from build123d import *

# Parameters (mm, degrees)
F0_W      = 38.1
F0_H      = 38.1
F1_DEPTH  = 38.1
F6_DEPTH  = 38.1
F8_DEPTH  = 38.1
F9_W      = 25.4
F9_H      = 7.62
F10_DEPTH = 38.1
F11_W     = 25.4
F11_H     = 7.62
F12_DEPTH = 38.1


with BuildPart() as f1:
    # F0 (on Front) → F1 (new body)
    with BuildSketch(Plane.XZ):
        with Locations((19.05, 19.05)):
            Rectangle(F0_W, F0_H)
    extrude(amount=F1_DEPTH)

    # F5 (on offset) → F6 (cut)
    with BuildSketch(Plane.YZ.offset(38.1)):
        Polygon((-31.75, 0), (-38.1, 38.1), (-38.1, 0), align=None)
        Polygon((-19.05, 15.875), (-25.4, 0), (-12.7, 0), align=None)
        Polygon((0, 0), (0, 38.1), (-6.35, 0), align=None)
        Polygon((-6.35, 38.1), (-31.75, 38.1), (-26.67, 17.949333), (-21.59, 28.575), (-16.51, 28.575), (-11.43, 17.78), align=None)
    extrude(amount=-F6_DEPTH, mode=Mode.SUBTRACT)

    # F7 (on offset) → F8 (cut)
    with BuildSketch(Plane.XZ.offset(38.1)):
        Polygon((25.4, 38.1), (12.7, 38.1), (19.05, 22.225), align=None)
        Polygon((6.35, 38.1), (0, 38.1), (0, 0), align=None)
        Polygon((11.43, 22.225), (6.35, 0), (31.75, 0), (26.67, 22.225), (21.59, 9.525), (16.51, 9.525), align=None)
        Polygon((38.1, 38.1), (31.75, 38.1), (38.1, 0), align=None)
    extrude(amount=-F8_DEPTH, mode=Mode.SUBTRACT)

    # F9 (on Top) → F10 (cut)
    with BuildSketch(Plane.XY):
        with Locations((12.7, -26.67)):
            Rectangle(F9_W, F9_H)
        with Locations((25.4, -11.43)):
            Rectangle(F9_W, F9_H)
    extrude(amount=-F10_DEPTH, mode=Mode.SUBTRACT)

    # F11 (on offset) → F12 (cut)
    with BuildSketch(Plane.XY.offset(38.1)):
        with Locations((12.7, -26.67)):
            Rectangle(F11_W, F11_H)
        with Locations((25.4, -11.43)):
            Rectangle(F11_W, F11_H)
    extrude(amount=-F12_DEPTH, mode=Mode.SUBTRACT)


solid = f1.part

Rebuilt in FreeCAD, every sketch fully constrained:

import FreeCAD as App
import Part
import Sketcher
from FreeCAD import Vector
Q = App.Units.Quantity

doc = App.newDocument("Part")
body = doc.addObject("PartDesign::Body", "Body")

# Sketch on XZ plane
sketch1 = doc.addObject("Sketcher::SketchObject", "Sketch")
body.addObject(sketch1)
sketch1.AttachmentSupport = (doc.XZ_Plane, [""])
sketch1.MapMode = "FlatFace"
sketch1.addGeometry([
    Part.LineSegment(Vector(0, 38, 0), Vector(0, 0, 0)),
    Part.LineSegment(Vector(0, 0, 0), Vector(38, 0, 0)),
    Part.LineSegment(Vector(38, 0, 0), Vector(38, 38, 0)),
    Part.LineSegment(Vector(38, 38, 0), Vector(0, 38, 0)),
], False)
sketch1.addConstraint([
    Sketcher.Constraint("Coincident", 0, 2, 1, 1),
    Sketcher.Constraint("Coincident", 1, 2, 2, 1),
    Sketcher.Constraint("Coincident", 2, 2, 3, 1),
    Sketcher.Constraint("Coincident", 3, 2, 0, 1),
    Sketcher.Constraint("Vertical", 0),
    Sketcher.Constraint("Horizontal", 1),
    Sketcher.Constraint("Vertical", 2),
    Sketcher.Constraint("Horizontal", 3),
    Sketcher.Constraint("Coincident", 0, 2, -1, 1),
    Sketcher.Constraint("Equal", 3, 0),
    Sketcher.Constraint("DistanceX", 1, 1, 1, 2, Q("1.5 in")),
])
pad1 = doc.addObject("PartDesign::Pad", "Pad")
body.addObject(pad1)
pad1.Profile = sketch1
pad1.Length = Q("1.5 in")

# Sketch on YZ plane
sketch2 = doc.addObject("Sketcher::SketchObject", "Sketch001")
body.addObject(sketch2)
sketch2.AttachmentSupport = (doc.YZ_Plane, [""])
sketch2.MapMode = "FlatFace"
sketch2.AttachmentOffset = App.Placement(Vector(0, 0, 1.5 * 25.4), App.Rotation())
sketch2.addGeometry([
    Part.LineSegment(Vector(-32, 0, 0), Vector(-38, 38, 0)),  # 0
    Part.LineSegment(Vector(-38, 38, 0), Vector(-38, 0, 0)),  # 1
    Part.LineSegment(Vector(-38, 0, 0), Vector(-32, 0, 0)),  # 2
    Part.LineSegment(Vector(-19, 16, 0), Vector(-25, 0, 0)),  # 3
    Part.LineSegment(Vector(-25, 0, 0), Vector(-13, 0, 0)),  # 4
    Part.LineSegment(Vector(-13, 0, 0), Vector(-19, 16, 0)),  # 5
    Part.LineSegment(Vector(0, 0, 0), Vector(0, 38, 0)),  # 6
    Part.LineSegment(Vector(0, 38, 0), Vector(-6, 0, 0)),  # 7
    Part.LineSegment(Vector(-6, 0, 0), Vector(0, 0, 0)),  # 8
    Part.LineSegment(Vector(-6, 38, 0), Vector(-32, 38, 0)),  # 9
    Part.LineSegment(Vector(-32, 38, 0), Vector(-27, 18, 0)),  # 10
    Part.LineSegment(Vector(-27, 18, 0), Vector(-22, 29, 0)),  # 11
    Part.LineSegment(Vector(-22, 29, 0), Vector(-17, 29, 0)),  # 12
    Part.LineSegment(Vector(-17, 29, 0), Vector(-11, 18, 0)),  # 13
    Part.LineSegment(Vector(-11, 18, 0), Vector(-6, 38, 0)),  # 14
], False)
sketch2.addConstraint([
    Sketcher.Constraint("Coincident", 0, 2, 1, 1),
    Sketcher.Constraint("Coincident", 1, 2, 2, 1),
    Sketcher.Constraint("Coincident", 2, 2, 0, 1),
    Sketcher.Constraint("Coincident", 3, 2, 4, 1),
    Sketcher.Constraint("Coincident", 4, 2, 5, 1),
    Sketcher.Constraint("Coincident", 5, 2, 3, 1),
    Sketcher.Constraint("Coincident", 6, 2, 7, 1),
    Sketcher.Constraint("Coincident", 7, 2, 8, 1),
    Sketcher.Constraint("Coincident", 8, 2, 6, 1),
    Sketcher.Constraint("Coincident", 9, 2, 10, 1),
    Sketcher.Constraint("Coincident", 10, 2, 11, 1),
    Sketcher.Constraint("Coincident", 11, 2, 12, 1),
    Sketcher.Constraint("Coincident", 12, 2, 13, 1),
    Sketcher.Constraint("Coincident", 13, 2, 14, 1),
    Sketcher.Constraint("Coincident", 14, 2, 9, 1),
    Sketcher.Constraint("Vertical", 1),
    Sketcher.Constraint("Horizontal", 2),
    Sketcher.Constraint("Horizontal", 4),
    Sketcher.Constraint("Vertical", 6),
    Sketcher.Constraint("Horizontal", 8),
    Sketcher.Constraint("Horizontal", 9),
    Sketcher.Constraint("Horizontal", 12),
    Sketcher.Constraint("Coincident", 8, 2, -1, 1),
    Sketcher.Constraint("PointOnObject", 1, 2, -1),
    Sketcher.Constraint("PointOnObject", 3, 2, -1),
    Sketcher.Constraint("Horizontal", 0, 2, 6, 2),
    Sketcher.Constraint("Horizontal", 6, 2, 9, 2),
    Sketcher.Constraint("Vertical", 2, 2, 9, 2),
    Sketcher.Constraint("Vertical", 7, 2, 14, 2),
    Sketcher.Constraint("Equal", 2, 8),
    Sketcher.Constraint("Equal", 3, 5),
    Sketcher.Constraint("DistanceX", 9, 2, 9, 1, Q("1 in")),
    Sketcher.Constraint("DistanceX", 4, 1, 4, 2, Q("0.5 in")),
    Sketcher.Constraint("DistanceX", 12, 1, 12, 2, Q("0.2 in")),
    Sketcher.Constraint("DistanceY", 1, 2, 1, 1, Q("1.5 in")),
    Sketcher.Constraint("DistanceX", 3, 2, -1, 1, Q("1 in")),
    Sketcher.Constraint("DistanceX", 1, 2, 4, 2, Q("1 in")),
    Sketcher.Constraint("DistanceY", -1, 1, 13, 2, Q("0.7 in")),
    Sketcher.Constraint("DistanceX", 10, 2, 5, 2, Q("0.3 in")),
    Sketcher.Constraint("DistanceX", 10, 2, 11, 2, Q("0.2 in")),
    Sketcher.Constraint("DistanceY", 5, 2, 11, 2, Q("0.5 in")),
    Sketcher.Constraint("DistanceX", 5, 2, 13, 2, Q("0.3 in")),
    Sketcher.Constraint("DistanceY", -1, 1, 5, 2, Q("0.625 in")),
    Sketcher.Constraint("Distance", 10, Q("20.78114 mm")),
])
pocket1 = doc.addObject("PartDesign::Pocket", "Pocket")
body.addObject(pocket1)
pocket1.Profile = sketch2
pocket1.Length = Q("1.5 in")

# Sketch on XZ plane
sketch3 = doc.addObject("Sketcher::SketchObject", "Sketch002")
body.addObject(sketch3)
sketch3.AttachmentSupport = (doc.XZ_Plane, [""])
sketch3.MapMode = "FlatFace"
sketch3.AttachmentOffset = App.Placement(Vector(0, 0, 1.5 * 25.4), App.Rotation())
sketch3.addGeometry([
    Part.LineSegment(Vector(25, 38, 0), Vector(13, 38, 0)),  # 0
    Part.LineSegment(Vector(13, 38, 0), Vector(19, 22, 0)),  # 1
    Part.LineSegment(Vector(19, 22, 0), Vector(25, 38, 0)),  # 2
    Part.LineSegment(Vector(6, 38, 0), Vector(0, 38, 0)),  # 3
    Part.LineSegment(Vector(0, 38, 0), Vector(0, 0, 0)),  # 4
    Part.LineSegment(Vector(0, 0, 0), Vector(6, 38, 0)),  # 5
    Part.LineSegment(Vector(11, 22, 0), Vector(6, 0, 0)),  # 6
    Part.LineSegment(Vector(6, 0, 0), Vector(32, 0, 0)),  # 7
    Part.LineSegment(Vector(32, 0, 0), Vector(27, 22, 0)),  # 8
    Part.LineSegment(Vector(27, 22, 0), Vector(22, 10, 0)),  # 9
    Part.LineSegment(Vector(22, 10, 0), Vector(17, 10, 0)),  # 10
    Part.LineSegment(Vector(17, 10, 0), Vector(11, 22, 0)),  # 11
    Part.LineSegment(Vector(38, 38, 0), Vector(32, 38, 0)),  # 12
    Part.LineSegment(Vector(32, 38, 0), Vector(38, 0, 0)),  # 13
    Part.LineSegment(Vector(38, 0, 0), Vector(38, 38, 0)),  # 14
], False)
sketch3.addConstraint([
    Sketcher.Constraint("Coincident", 0, 2, 1, 1),
    Sketcher.Constraint("Coincident", 1, 2, 2, 1),
    Sketcher.Constraint("Coincident", 2, 2, 0, 1),
    Sketcher.Constraint("Coincident", 3, 2, 4, 1),
    Sketcher.Constraint("Coincident", 4, 2, 5, 1),
    Sketcher.Constraint("Coincident", 5, 2, 3, 1),
    Sketcher.Constraint("Coincident", 6, 2, 7, 1),
    Sketcher.Constraint("Coincident", 7, 2, 8, 1),
    Sketcher.Constraint("Coincident", 8, 2, 9, 1),
    Sketcher.Constraint("Coincident", 9, 2, 10, 1),
    Sketcher.Constraint("Coincident", 10, 2, 11, 1),
    Sketcher.Constraint("Coincident", 11, 2, 6, 1),
    Sketcher.Constraint("Coincident", 12, 2, 13, 1),
    Sketcher.Constraint("Coincident", 13, 2, 14, 1),
    Sketcher.Constraint("Coincident", 14, 2, 12, 1),
    Sketcher.Constraint("Horizontal", 0),
    Sketcher.Constraint("Horizontal", 3),
    Sketcher.Constraint("Vertical", 4),
    Sketcher.Constraint("Horizontal", 7),
    Sketcher.Constraint("Horizontal", 10),
    Sketcher.Constraint("Horizontal", 12),
    Sketcher.Constraint("Vertical", 14),
    Sketcher.Constraint("Coincident", 4, 2, -1, 1),
    Sketcher.Constraint("PointOnObject", 6, 2, -1),
    Sketcher.Constraint("PointOnObject", 13, 2, -1),
    Sketcher.Constraint("Parallel", 2, 9),
    Sketcher.Constraint("Parallel", 1, 11),
    Sketcher.Constraint("Horizontal", 2, 2, 3, 2),
    Sketcher.Constraint("Horizontal", 1, 2, 8, 2),
    Sketcher.Constraint("Horizontal", 8, 2, 11, 2),
    Sketcher.Constraint("Horizontal", 5, 2, 12, 2),
    Sketcher.Constraint("Vertical", 5, 2, 6, 2),
    Sketcher.Constraint("Vertical", 7, 2, 12, 2),
    Sketcher.Constraint("Equal", 3, 12),
    Sketcher.Constraint("Equal", 1, 2),
    Sketcher.Constraint("Equal", 6, 8),
    Sketcher.Constraint("DistanceX", 7, 1, 7, 2, Q("1 in")),
    Sketcher.Constraint("DistanceX", 0, 2, 0, 1, Q("0.5 in")),
    Sketcher.Constraint("DistanceX", 10, 2, 10, 1, Q("0.2 in")),
    Sketcher.Constraint("DistanceY", 4, 2, 4, 1, Q("1.5 in")),
    Sketcher.Constraint("DistanceX", -1, 1, 2, 2, Q("1 in")),
    Sketcher.Constraint("DistanceX", 0, 2, 14, 2, Q("1 in")),
    Sketcher.Constraint("DistanceX", 1, 2, 8, 2, Q("0.3 in")),
    Sketcher.Constraint("DistanceY", 9, 2, 1, 2, Q("0.5 in")),
])
pocket2 = doc.addObject("PartDesign::Pocket", "Pocket001")
body.addObject(pocket2)
pocket2.Profile = sketch3
pocket2.Length = Q("1.5 in")

# Sketch on XY plane
sketch4 = doc.addObject("Sketcher::SketchObject", "Sketch003")
body.addObject(sketch4)
sketch4.AttachmentSupport = (doc.XY_Plane, [""])
sketch4.MapMode = "FlatFace"
sketch4.addGeometry([
    Part.LineSegment(Vector(0, -23, 0), Vector(0, -30, 0)),  # 0
    Part.LineSegment(Vector(0, -30, 0), Vector(25, -30, 0)),  # 1
    Part.LineSegment(Vector(25, -30, 0), Vector(25, -23, 0)),  # 2
    Part.LineSegment(Vector(25, -23, 0), Vector(0, -23, 0)),  # 3
    Part.LineSegment(Vector(13, -8, 0), Vector(13, -15, 0)),  # 4
    Part.LineSegment(Vector(13, -15, 0), Vector(38, -15, 0)),  # 5
    Part.LineSegment(Vector(38, -15, 0), Vector(38, -8, 0)),  # 6
    Part.LineSegment(Vector(38, -8, 0), Vector(13, -8, 0)),  # 7
], False)
sketch4.addConstraint([
    Sketcher.Constraint("Coincident", 0, 2, 1, 1),
    Sketcher.Constraint("Coincident", 1, 2, 2, 1),
    Sketcher.Constraint("Coincident", 2, 2, 3, 1),
    Sketcher.Constraint("Coincident", 3, 2, 0, 1),
    Sketcher.Constraint("Coincident", 4, 2, 5, 1),
    Sketcher.Constraint("Coincident", 5, 2, 6, 1),
    Sketcher.Constraint("Coincident", 6, 2, 7, 1),
    Sketcher.Constraint("Coincident", 7, 2, 4, 1),
    Sketcher.Constraint("Vertical", 0),
    Sketcher.Constraint("Horizontal", 1),
    Sketcher.Constraint("Vertical", 2),
    Sketcher.Constraint("Horizontal", 3),
    Sketcher.Constraint("Vertical", 4),
    Sketcher.Constraint("Horizontal", 5),
    Sketcher.Constraint("Vertical", 6),
    Sketcher.Constraint("Horizontal", 7),
    Sketcher.Constraint("PointOnObject", 0, 2, -2),
    Sketcher.Constraint("Equal", 3, 5),
    Sketcher.Constraint("Equal", 2, 4),
    Sketcher.Constraint("DistanceX", 1, 1, 1, 2, Q("1 in")),
    Sketcher.Constraint("DistanceY", 0, 2, 0, 1, Q("0.3 in")),
    Sketcher.Constraint("DistanceY", 0, 2, -1, 1, Q("1.2 in")),
    Sketcher.Constraint("DistanceX", -1, 1, 4, 2, Q("0.5 in")),
    Sketcher.Constraint("DistanceY", 4, 2, -1, 1, Q("0.6 in")),
])
pocket3 = doc.addObject("PartDesign::Pocket", "Pocket002")
body.addObject(pocket3)
pocket3.Profile = sketch4
pocket3.Length = Q("1.5 in")

# Sketch on XY plane
sketch5 = doc.addObject("Sketcher::SketchObject", "Sketch004")
body.addObject(sketch5)
sketch5.AttachmentSupport = (doc.XY_Plane, [""])
sketch5.MapMode = "FlatFace"
sketch5.AttachmentOffset = App.Placement(Vector(0, 0, 1.5 * 25.4), App.Rotation())
sketch5.addGeometry([
    Part.LineSegment(Vector(0, -23, 0), Vector(0, -30, 0)),  # 0
    Part.LineSegment(Vector(0, -30, 0), Vector(25, -30, 0)),  # 1
    Part.LineSegment(Vector(25, -30, 0), Vector(25, -23, 0)),  # 2
    Part.LineSegment(Vector(25, -23, 0), Vector(0, -23, 0)),  # 3
    Part.LineSegment(Vector(13, -8, 0), Vector(13, -15, 0)),  # 4
    Part.LineSegment(Vector(13, -15, 0), Vector(38, -15, 0)),  # 5
    Part.LineSegment(Vector(38, -15, 0), Vector(38, -8, 0)),  # 6
    Part.LineSegment(Vector(38, -8, 0), Vector(13, -8, 0)),  # 7
], False)
sketch5.addConstraint([
    Sketcher.Constraint("Coincident", 0, 2, 1, 1),
    Sketcher.Constraint("Coincident", 1, 2, 2, 1),
    Sketcher.Constraint("Coincident", 2, 2, 3, 1),
    Sketcher.Constraint("Coincident", 3, 2, 0, 1),
    Sketcher.Constraint("Coincident", 4, 2, 5, 1),
    Sketcher.Constraint("Coincident", 5, 2, 6, 1),
    Sketcher.Constraint("Coincident", 6, 2, 7, 1),
    Sketcher.Constraint("Coincident", 7, 2, 4, 1),
    Sketcher.Constraint("Vertical", 0),
    Sketcher.Constraint("Horizontal", 1),
    Sketcher.Constraint("Vertical", 2),
    Sketcher.Constraint("Horizontal", 3),
    Sketcher.Constraint("Vertical", 4),
    Sketcher.Constraint("Horizontal", 5),
    Sketcher.Constraint("Vertical", 6),
    Sketcher.Constraint("Horizontal", 7),
    Sketcher.Constraint("PointOnObject", 0, 2, -2),
    Sketcher.Constraint("Equal", 3, 5),
    Sketcher.Constraint("Equal", 2, 4),
    Sketcher.Constraint("DistanceX", 1, 1, 1, 2, Q("1 in")),
    Sketcher.Constraint("DistanceY", 0, 2, 0, 1, Q("0.3 in")),
    Sketcher.Constraint("DistanceY", 0, 2, -1, 1, Q("1.2 in")),
    Sketcher.Constraint("DistanceX", -1, 1, 4, 2, Q("0.5 in")),
    Sketcher.Constraint("DistanceY", 4, 2, -1, 1, Q("0.6 in")),
])
pocket4 = doc.addObject("PartDesign::Pocket", "Pocket003")
body.addObject(pocket4)
pocket4.Profile = sketch5
pocket4.Length = Q("1.5 in")

doc.recompute()
